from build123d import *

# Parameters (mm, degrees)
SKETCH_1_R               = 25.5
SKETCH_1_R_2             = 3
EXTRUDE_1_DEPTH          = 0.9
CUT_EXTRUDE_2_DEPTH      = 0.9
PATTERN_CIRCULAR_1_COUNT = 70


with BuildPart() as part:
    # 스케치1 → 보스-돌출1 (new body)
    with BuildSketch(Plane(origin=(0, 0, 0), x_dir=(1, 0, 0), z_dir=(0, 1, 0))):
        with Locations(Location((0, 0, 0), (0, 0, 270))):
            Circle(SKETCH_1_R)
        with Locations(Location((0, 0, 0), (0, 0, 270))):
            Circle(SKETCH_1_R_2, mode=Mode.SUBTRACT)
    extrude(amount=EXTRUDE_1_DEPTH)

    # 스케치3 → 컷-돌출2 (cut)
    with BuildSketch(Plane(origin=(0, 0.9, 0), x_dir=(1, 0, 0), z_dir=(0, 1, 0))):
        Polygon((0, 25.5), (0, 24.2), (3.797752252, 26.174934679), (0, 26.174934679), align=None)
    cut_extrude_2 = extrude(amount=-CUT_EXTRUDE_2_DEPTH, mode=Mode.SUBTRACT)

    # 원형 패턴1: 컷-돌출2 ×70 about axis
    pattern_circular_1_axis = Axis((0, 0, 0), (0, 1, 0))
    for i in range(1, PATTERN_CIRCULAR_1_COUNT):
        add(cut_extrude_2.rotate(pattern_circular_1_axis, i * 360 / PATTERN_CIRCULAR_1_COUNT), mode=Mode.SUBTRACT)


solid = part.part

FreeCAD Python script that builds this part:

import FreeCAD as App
import Part
import Sketcher

V = App.Vector

doc = App.newDocument("Part")
body = doc.addObject("PartDesign::Body", "Body")

sketch1 = body.newObject("Sketcher::SketchObject", "Sketch")
sketch1.AttachmentSupport = (doc.getObject("XZ_Plane"), [""])
sketch1.MapMode = "FlatFace"
sketch1.addGeometry([
    Part.Circle(V(0, 0, 0), V(0, 0, 1), 25.5),
    Part.Circle(V(0, 0, 0), V(0, 0, 1), 3),
], False)
sketch1.addConstraint([
    Sketcher.Constraint("Coincident", 0, 3, -1, 1),
    Sketcher.Constraint("Coincident", 1, 3, -1, 1),
    Sketcher.Constraint("Diameter", 0, 51.0),
    Sketcher.Constraint("Diameter", 1, 6.0),
])
pad1 = body.newObject("PartDesign::Pad", "Pad")
pad1.Profile = sketch1
pad1.Length = 0.9
pad1.Reversed = True

sketch2 = body.newObject("Sketcher::SketchObject", "Sketch001")
sketch2.AttachmentSupport = (doc.getObject("XZ_Plane"), [""])
sketch2.MapMode = "FlatFace"
sketch2.AttachmentOffset = App.Placement(V(0, 0, -0.9), App.Rotation())
sketch2.addGeometry([
    Part.LineSegment(V(0, -24.2, 0), V(3.8, -26.2, 0)),
    Part.LineSegment(V(3.8, -26.2, 0), V(0, -26.2, 0)),
    Part.LineSegment(V(0, -26.2, 0), V(0, -24.2, 0)),
], False)
sketch2.addConstraint([
    Sketcher.Constraint("Coincident", 0, 2, 1, 1),
    Sketcher.Constraint("Coincident", 1, 2, 2, 1),
    Sketcher.Constraint("Coincident", 2, 2, 0, 1),
    Sketcher.Constraint("Horizontal", 1),
    Sketcher.Constraint("Vertical", 2),
    Sketcher.Constraint("PointOnObject", 1, 2, -2),
    Sketcher.Constraint("DistanceY", 2, 2, -1, 1, 24.2),
    Sketcher.Constraint("Distance", 0, 4.280571),
    Sketcher.Constraint("DistanceX", 1, 2, 1, 1, 3.797752),
])
pocket1 = body.newObject("PartDesign::Pocket", "Pocket")
pocket1.Profile = sketch2
pocket1.Length = 0.9
pocket1.Reversed = True
doc.recompute()

polarpattern = body.newObject("PartDesign::PolarPattern", "PolarPattern")
polarpattern.Originals = [pocket1]
polarpattern.Axis = (doc.getObject("Y_Axis"), [""])
polarpattern.Angle = 360
polarpattern.Occurrences = 70
body.Tip = polarpattern

doc.recompute()
